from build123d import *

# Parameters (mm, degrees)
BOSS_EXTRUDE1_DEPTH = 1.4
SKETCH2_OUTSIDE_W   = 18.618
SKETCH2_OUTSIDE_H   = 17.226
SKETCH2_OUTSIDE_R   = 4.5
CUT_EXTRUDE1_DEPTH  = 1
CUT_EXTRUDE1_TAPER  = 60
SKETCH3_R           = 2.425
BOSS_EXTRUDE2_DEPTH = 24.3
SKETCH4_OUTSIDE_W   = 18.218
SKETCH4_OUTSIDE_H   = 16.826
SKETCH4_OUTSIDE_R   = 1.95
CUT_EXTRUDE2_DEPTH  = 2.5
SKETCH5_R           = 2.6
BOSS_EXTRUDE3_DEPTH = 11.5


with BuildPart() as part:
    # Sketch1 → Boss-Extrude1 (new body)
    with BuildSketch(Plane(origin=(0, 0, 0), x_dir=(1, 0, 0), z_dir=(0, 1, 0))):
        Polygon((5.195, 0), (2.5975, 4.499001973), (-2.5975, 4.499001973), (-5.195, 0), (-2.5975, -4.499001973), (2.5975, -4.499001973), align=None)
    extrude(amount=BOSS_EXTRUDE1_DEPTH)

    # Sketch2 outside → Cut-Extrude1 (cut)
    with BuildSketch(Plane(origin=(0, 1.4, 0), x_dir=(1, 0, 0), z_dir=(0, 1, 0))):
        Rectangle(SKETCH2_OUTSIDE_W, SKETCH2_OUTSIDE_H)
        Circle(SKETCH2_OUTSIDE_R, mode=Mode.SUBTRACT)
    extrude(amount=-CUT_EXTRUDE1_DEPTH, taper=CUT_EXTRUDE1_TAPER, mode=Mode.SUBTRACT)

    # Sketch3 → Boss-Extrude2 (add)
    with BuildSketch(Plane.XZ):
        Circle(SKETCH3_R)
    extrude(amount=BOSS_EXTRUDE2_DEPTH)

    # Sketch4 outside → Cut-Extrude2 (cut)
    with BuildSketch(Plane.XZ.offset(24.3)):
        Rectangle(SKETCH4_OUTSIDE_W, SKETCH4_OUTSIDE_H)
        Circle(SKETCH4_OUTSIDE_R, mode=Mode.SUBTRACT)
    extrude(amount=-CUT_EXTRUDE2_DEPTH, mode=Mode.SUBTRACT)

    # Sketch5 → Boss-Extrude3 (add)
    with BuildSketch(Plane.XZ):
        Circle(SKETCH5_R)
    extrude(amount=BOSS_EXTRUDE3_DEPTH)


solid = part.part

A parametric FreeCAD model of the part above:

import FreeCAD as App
import Part
import Sketcher
Q = App.Units.Quantity

doc = App.newDocument("Part")
params = doc.addObject("Spreadsheet::Sheet", "Params")
for row, (alias, value) in enumerate([
    ("pad1_length", "1.4 mm"),
    ("sketch2_diameter", "9 mm"),
    ("pocket1_length", "1 mm"),
    ("pocket1_taper", "60 deg"),
    ("sketch3_diameter", "4.85 mm"),
    ("pad2_length", "24.3 mm"),
    ("sketch4_diameter", "3.9 mm"),
    ("pocket2_length", "2.5 mm"),
    ("sketch5_diameter", "5.2 mm"),
    ("pad3_length", "11.5 mm"),
], start=1):
    params.set(f"A{row}", alias)
    params.set(f"B{row}", "=" + value)
    params.setAlias(f"B{row}", alias)

body = doc.addObject("PartDesign::Body", "Body")

sketch1 = body.newObject("Sketcher::SketchObject", "Sketch")
sketch1.AttachmentSupport = (doc.getObject("XZ_Plane"), [""])
sketch1.MapMode = "FlatFace"
sketch1.addGeometry([
    Part.LineSegment(App.Vector(5, 0, 0), App.Vector(3, -4, 0)),
    Part.LineSegment(App.Vector(3, -4, 0), App.Vector(-3, -4, 0)),
    Part.LineSegment(App.Vector(-3, -4, 0), App.Vector(-5, 0, 0)),
    Part.LineSegment(App.Vector(-5, 0, 0), App.Vector(-3, 4, 0)),
    Part.LineSegment(App.Vector(-3, 4, 0), App.Vector(3, 4, 0)),
    Part.LineSegment(App.Vector(3, 4, 0), App.Vector(5, 0, 0)),
], False)
sketch1.addConstraint([
    Sketcher.Constraint("Coincident", 0, 2, 1, 1),
    Sketcher.Constraint("Coincident", 1, 2, 2, 1),
    Sketcher.Constraint("Coincident", 2, 2, 3, 1),
    Sketcher.Constraint("Coincident", 3, 2, 4, 1),
    Sketcher.Constraint("Coincident", 4, 2, 5, 1),
    Sketcher.Constraint("Coincident", 5, 2, 0, 1),
    Sketcher.Constraint("Horizontal", 1),
    Sketcher.Constraint("Horizontal", 4),
    Sketcher.Constraint("Symmetric", 0, 2, 3, 2, -1, 1),
    Sketcher.Constraint("Symmetric", 2, 2, 5, 2, -1, 1),
    Sketcher.Constraint("PointOnObject", 2, 2, -1),
    Sketcher.Constraint("Parallel", 2, 5),
    Sketcher.Constraint("Vertical", 1, 2, 3, 2),
    Sketcher.Constraint("Angle", 0, Q("-120 deg")),
    Sketcher.Constraint("DistanceX", 1, 2, 1, 1, Q("5.195 mm")),
    Sketcher.Constraint("DistanceX", 2, 2, 5, 2, Q("10.39 mm")),
])
pad1 = body.newObject("PartDesign::Pad", "Pad")
pad1.Profile = sketch1
pad1.setExpression("Length", "Params.pad1_length")
pad1.Reversed = True

sketch2 = body.newObject("Sketcher::SketchObject", "Sketch001")
sketch2.AttachmentSupport = (doc.getObject("XZ_Plane"), [""])
sketch2.MapMode = "FlatFace"
sketch2.AttachmentOffset = App.Placement(App.Vector(0, 0, -1.4), App.Rotation())
sketch2.addGeometry([
    Part.LineSegment(App.Vector(-9.3, -8.6, 0), App.Vector(-9.3, 8.6, 0)),
    Part.LineSegment(App.Vector(-9.3, 8.6, 0), App.Vector(9.3, 8.6, 0)),
    Part.LineSegment(App.Vector(9.3, 8.6, 0), App.Vector(9.3, -8.6, 0)),
    Part.LineSegment(App.Vector(9.3, -8.6, 0), App.Vector(-9.3, -8.6, 0)),
    Part.Circle(App.Vector(0, 0, 0), App.Vector(0, 0, 1), 4.5),
], False)
sketch2.addConstraint([
    Sketcher.Constraint("Coincident", 0, 2, 1, 1),
    Sketcher.Constraint("Coincident", 1, 2, 2, 1),
    Sketcher.Constraint("Coincident", 2, 2, 3, 1),
    Sketcher.Constraint("Coincident", 3, 2, 0, 1),
    Sketcher.Constraint("Vertical", 0),
    Sketcher.Constraint("Horizontal", 1),
    Sketcher.Constraint("Vertical", 2),
    Sketcher.Constraint("Horizontal", 3),
    Sketcher.Constraint("Coincident", 4, 3, -1, 1),
    Sketcher.Constraint("Symmetric", 0, 2, 2, 2, -1, 1),
    Sketcher.Constraint("Diameter", 4, Q("9 mm")),
    Sketcher.Constraint("DistanceX", 1, 1, 1, 2, Q("18.618 mm")),
    Sketcher.Constraint("DistanceY", 0, 1, 0, 2, Q("17.226 mm")),
])
sketch2.setExpression("Constraints[10]", "Params.sketch2_diameter")
pocket1 = body.newObject("PartDesign::Pocket", "Pocket")
pocket1.Profile = sketch2
pocket1.setExpression("Length", "Params.pocket1_length")
pocket1.Reversed = True
pocket1.setExpression("TaperAngle", "Params.pocket1_taper")

sketch3 = body.newObject("Sketcher::SketchObject", "Sketch002")
sketch3.AttachmentSupport = (doc.getObject("XZ_Plane"), [""])
sketch3.MapMode = "FlatFace"
sketch3.addGeometry(Part.Circle(App.Vector(0, 0, 0), App.Vector(0, 0, 1), 2.4), False)
sketch3.addConstraint([
    Sketcher.Constraint("Coincident", 0, 3, -1, 1),
    Sketcher.Constraint("Diameter", 0, Q("4.85 mm")),
])
sketch3.setExpression("Constraints[1]", "Params.sketch3_diameter")
pad2 = body.newObject("PartDesign::Pad", "Pad001")
pad2.Profile = sketch3
pad2.setExpression("Length", "Params.pad2_length")

sketch4 = body.newObject("Sketcher::SketchObject", "Sketch003")
sketch4.AttachmentSupport = (doc.getObject("XZ_Plane"), [""])
sketch4.MapMode = "FlatFace"
sketch4.AttachmentOffset = App.Placement(App.Vector(0, 0, 24.3), App.Rotation())
sketch4.addGeometry([
    Part.LineSegment(App.Vector(-9.1, 8.4, 0), App.Vector(-9.1, -8.4, 0)),
    Part.LineSegment(App.Vector(-9.1, -8.4, 0), App.Vector(9.1, -8.4, 0)),
    Part.LineSegment(App.Vector(9.1, -8.4, 0), App.Vector(9.1, 8.4, 0)),
    Part.LineSegment(App.Vector(9.1, 8.4, 0), App.Vector(-9.1, 8.4, 0)),
    Part.Circle(App.Vector(0, 0, 0), App.Vector(0, 0, 1), 1.9),
], False)
sketch4.addConstraint([
    Sketcher.Constraint("Coincident", 0, 2, 1, 1),
    Sketcher.Constraint("Coincident", 1, 2, 2, 1),
    Sketcher.Constraint("Coincident", 2, 2, 3, 1),
    Sketcher.Constraint("Coincident", 3, 2, 0, 1),
    Sketcher.Constraint("Vertical", 0),
    Sketcher.Constraint("Horizontal", 1),
    Sketcher.Constraint("Vertical", 2),
    Sketcher.Constraint("Horizontal", 3),
    Sketcher.Constraint("Coincident", 4, 3, -1, 1),
    Sketcher.Constraint("Symmetric", 0, 2, 2, 2, -1, 1),
    Sketcher.Constraint("Diameter", 4, Q("3.9 mm")),
    Sketcher.Constraint("DistanceX", 1, 1, 1, 2, Q("18.218 mm")),
    Sketcher.Constraint("DistanceY", 0, 2, 0, 1, Q("16.826 mm")),
])
sketch4.setExpression("Constraints[10]", "Params.sketch4_diameter")
pocket2 = body.newObject("PartDesign::Pocket", "Pocket001")
pocket2.Profile = sketch4
pocket2.setExpression("Length", "Params.pocket2_length")

sketch5 = body.newObject("Sketcher::SketchObject", "Sketch004")
sketch5.AttachmentSupport = (doc.getObject("XZ_Plane"), [""])
sketch5.MapMode = "FlatFace"
sketch5.addGeometry(Part.Circle(App.Vector(0, 0, 0), App.Vector(0, 0, 1), 2.6), False)
sketch5.addConstraint([
    Sketcher.Constraint("Coincident", 0, 3, -1, 1),
    Sketcher.Constraint("Diameter", 0, Q("5.2 mm")),
])
sketch5.setExpression("Constraints[1]", "Params.sketch5_diameter")
pad3 = body.newObject("PartDesign::Pad", "Pad002")
pad3.Profile = sketch5
pad3.setExpression("Length", "Params.pad3_length")

doc.recompute()
